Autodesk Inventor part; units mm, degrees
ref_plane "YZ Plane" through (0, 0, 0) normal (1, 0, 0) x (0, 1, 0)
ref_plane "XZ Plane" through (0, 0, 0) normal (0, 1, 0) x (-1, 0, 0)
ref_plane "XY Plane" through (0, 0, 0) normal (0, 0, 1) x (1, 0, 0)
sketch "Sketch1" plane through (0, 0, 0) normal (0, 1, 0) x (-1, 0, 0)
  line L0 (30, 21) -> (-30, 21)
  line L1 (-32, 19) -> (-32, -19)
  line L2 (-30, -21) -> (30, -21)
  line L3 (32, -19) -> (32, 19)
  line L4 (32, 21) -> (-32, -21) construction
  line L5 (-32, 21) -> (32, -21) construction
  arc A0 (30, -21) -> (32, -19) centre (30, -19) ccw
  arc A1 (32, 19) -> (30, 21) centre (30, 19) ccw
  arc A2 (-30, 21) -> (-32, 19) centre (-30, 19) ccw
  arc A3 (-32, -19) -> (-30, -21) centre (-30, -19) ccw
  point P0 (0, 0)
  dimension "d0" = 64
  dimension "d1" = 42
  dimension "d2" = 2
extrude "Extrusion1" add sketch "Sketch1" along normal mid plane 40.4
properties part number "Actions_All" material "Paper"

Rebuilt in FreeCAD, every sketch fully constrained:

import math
import FreeCAD as App
import Part
import Sketcher
from FreeCAD import Vector

doc = App.newDocument("Part")
body = doc.addObject("PartDesign::Body", "Body")

# Sketch on XZ plane
sketch1 = body.newObject("Sketcher::SketchObject", "Sketch")
sketch1.AttachmentSupport = (doc.getObject("XZ_Plane"), [""])
sketch1.MapMode = "FlatFace"
sketch1.addGeometry(Part.ArcOfCircle(Part.Circle(Vector(-30, 19, 0), Vector(0, 0, 1), 2), math.radians(90), math.radians(180)), False)
sketch1.addGeometry(Part.LineSegment(Vector(-30, 21, 0), Vector(30, 21, 0)), False)
sketch1.addGeometry(Part.ArcOfCircle(Part.Circle(Vector(30, 19, 0), Vector(0, 0, 1), 2), math.radians(0), math.radians(90)), False)
sketch1.addGeometry(Part.LineSegment(Vector(32, 19, 0), Vector(32, -19, 0)), False)
sketch1.addGeometry(Part.ArcOfCircle(Part.Circle(Vector(30, -19, 0), Vector(0, 0, 1), 2), math.radians(-90), math.radians(0)), False)
sketch1.addGeometry(Part.LineSegment(Vector(30, -21, 0), Vector(-30, -21, 0)), False)
sketch1.addGeometry(Part.ArcOfCircle(Part.Circle(Vector(-30, -19, 0), Vector(0, 0, 1), 2), math.radians(180), math.radians(270)), False)
sketch1.addGeometry(Part.LineSegment(Vector(-32, -19, 0), Vector(-32, 19, 0)), False)
sketch1.addConstraint(Sketcher.Constraint("Tangent", 0, 1, 1, 1))
sketch1.addConstraint(Sketcher.Constraint("Tangent", 1, 2, 2, 2))
sketch1.addConstraint(Sketcher.Constraint("Tangent", 2, 1, 3, 1))
sketch1.addConstraint(Sketcher.Constraint("Tangent", 3, 2, 4, 2))
sketch1.addConstraint(Sketcher.Constraint("Tangent", 4, 1, 5, 1))
sketch1.addConstraint(Sketcher.Constraint("Tangent", 5, 2, 6, 2))
sketch1.addConstraint(Sketcher.Constraint("Tangent", 6, 1, 7, 1))
sketch1.addConstraint(Sketcher.Constraint("Tangent", 7, 2, 0, 2))
sketch1.addConstraint(Sketcher.Constraint("Horizontal", 1))
sketch1.addConstraint(Sketcher.Constraint("Vertical", 3))
sketch1.addConstraint(Sketcher.Constraint("Horizontal", 5))
sketch1.addConstraint(Sketcher.Constraint("Vertical", 7))
sketch1.addConstraint(Sketcher.Constraint("Equal", 0, 2))
sketch1.addConstraint(Sketcher.Constraint("Equal", 2, 4))
sketch1.addConstraint(Sketcher.Constraint("Equal", 4, 6))
sketch1.addConstraint(Sketcher.Constraint("Symmetric", 0, 3, 4, 3, -1, 1))
sketch1.addConstraint(Sketcher.Constraint("Radius", 0, 2.0))
sketch1.addConstraint(Sketcher.Constraint("DistanceY", 4, 1, 1, 2, 42.0))
sketch1.addConstraint(Sketcher.Constraint("DistanceX", 1, 1, 1, 2, 60.0))
pad1 = body.newObject("PartDesign::Pad", "Pad")
pad1.Profile = sketch1
pad1.Length = 40.4
pad1.Midplane = True

doc.recompute()
